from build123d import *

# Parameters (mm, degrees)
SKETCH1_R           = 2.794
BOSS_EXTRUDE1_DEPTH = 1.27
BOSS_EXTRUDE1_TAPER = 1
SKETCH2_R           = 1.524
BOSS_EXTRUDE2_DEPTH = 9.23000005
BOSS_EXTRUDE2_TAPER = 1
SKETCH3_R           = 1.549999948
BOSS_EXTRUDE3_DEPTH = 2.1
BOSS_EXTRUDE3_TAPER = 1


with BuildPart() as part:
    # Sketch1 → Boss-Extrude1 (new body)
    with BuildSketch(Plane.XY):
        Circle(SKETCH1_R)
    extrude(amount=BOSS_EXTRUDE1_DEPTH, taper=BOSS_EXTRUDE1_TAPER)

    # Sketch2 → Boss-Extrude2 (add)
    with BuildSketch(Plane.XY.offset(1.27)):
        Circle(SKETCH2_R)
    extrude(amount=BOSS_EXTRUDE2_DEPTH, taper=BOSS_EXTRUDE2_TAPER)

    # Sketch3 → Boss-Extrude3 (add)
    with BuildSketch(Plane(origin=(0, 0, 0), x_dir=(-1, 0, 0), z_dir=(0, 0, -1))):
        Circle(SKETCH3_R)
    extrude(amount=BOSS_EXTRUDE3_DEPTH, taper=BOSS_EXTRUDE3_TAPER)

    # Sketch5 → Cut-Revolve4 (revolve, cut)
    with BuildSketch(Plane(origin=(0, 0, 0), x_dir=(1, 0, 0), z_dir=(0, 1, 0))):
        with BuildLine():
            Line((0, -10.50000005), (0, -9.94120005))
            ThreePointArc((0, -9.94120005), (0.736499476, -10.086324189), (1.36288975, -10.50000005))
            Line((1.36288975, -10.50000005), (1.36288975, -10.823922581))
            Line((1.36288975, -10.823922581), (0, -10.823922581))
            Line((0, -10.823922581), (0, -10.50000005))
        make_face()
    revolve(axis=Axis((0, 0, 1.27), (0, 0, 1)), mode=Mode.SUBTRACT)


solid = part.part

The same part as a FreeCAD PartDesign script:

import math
import FreeCAD as App
import Part
import Sketcher
Q = App.Units.Quantity

doc = App.newDocument("Part")
body = doc.addObject("PartDesign::Body", "Body")

# Sketch on XY plane
sketch1 = body.newObject("Sketcher::SketchObject", "Sketch")
sketch1.AttachmentSupport = (doc.getObject("XY_Plane"), [""])
sketch1.MapMode = "FlatFace"
sketch1.addGeometry(Part.Circle(App.Vector(0, 0, 0), App.Vector(0, 0, 1), 2.794), False)
sketch1.addConstraint([
    Sketcher.Constraint("Coincident", 0, 3, -1, 1),
    Sketcher.Constraint("Diameter", 0, Q("0.22 in")),
])
pad1 = body.newObject("PartDesign::Pad", "Pad")
pad1.Profile = sketch1
pad1.Length = Q("0.05 in")
pad1.TaperAngle = -1

# Sketch on XY plane
sketch2 = body.newObject("Sketcher::SketchObject", "Sketch001")
sketch2.AttachmentSupport = (doc.getObject("XY_Plane"), [""])
sketch2.MapMode = "FlatFace"
sketch2.AttachmentOffset = App.Placement(App.Vector(0, 0, 0.05 * 25.4), App.Rotation())
sketch2.addGeometry(Part.Circle(App.Vector(0, 0, 0), App.Vector(0, 0, 1), 1.524), False)
sketch2.addConstraint([
    Sketcher.Constraint("Coincident", 0, 3, -1, 1),
    Sketcher.Constraint("Diameter", 0, Q("0.12 in")),
])
pad2 = body.newObject("PartDesign::Pad", "Pad001")
pad2.Profile = sketch2
pad2.Length = 9.23
pad2.TaperAngle = -1

# Sketch on XY plane
sketch3 = body.newObject("Sketcher::SketchObject", "Sketch002")
sketch3.AttachmentSupport = (doc.getObject("XY_Plane"), [""])
sketch3.MapMode = "FlatFace"
sketch3.addGeometry(Part.Circle(App.Vector(0, 0, 0), App.Vector(0, 0, 1), 1.55), False)
sketch3.addConstraint([
    Sketcher.Constraint("Coincident", 0, 3, -1, 1),
    Sketcher.Constraint("Diameter", 0, Q("3.1 mm")),
])
pad3 = body.newObject("PartDesign::Pad", "Pad002")
pad3.Profile = sketch3
pad3.Length = 2.1
pad3.Reversed = True
pad3.TaperAngle = -1

# Sketch on XZ plane
sketch4 = body.newObject("Sketcher::SketchObject", "Sketch003")
sketch4.AttachmentSupport = (doc.getObject("XZ_Plane"), [""])
sketch4.MapMode = "FlatFace"
sketch4.addGeometry([
    Part.ArcOfCircle(Part.Circle(App.Vector(0, 11.882615, 0), App.Vector(0, 0, 1), 1.941415), math.radians(-90), math.radians(-45.411647)),
    Part.LineSegment(App.Vector(0, 9.9412, 0), App.Vector(0, 10.823923, 0)),
    Part.LineSegment(App.Vector(0, 10.823923, 0), App.Vector(1.36289, 10.823923, 0)),
    Part.LineSegment(App.Vector(1.36289, 10.823923, 0), App.Vector(1.36289, 10.5, 0)),
], False)
sketch4.addConstraint([
    Sketcher.Constraint("Coincident", 0, 1, 1, 1),
    Sketcher.Constraint("Coincident", 1, 2, 2, 1),
    Sketcher.Constraint("Coincident", 2, 2, 3, 1),
    Sketcher.Constraint("Coincident", 3, 2, 0, 2),
    Sketcher.Constraint("Vertical", 1),
    Sketcher.Constraint("Horizontal", 2),
    Sketcher.Constraint("Vertical", 3),
    Sketcher.Constraint("PointOnObject", 0, 3, -2),
    Sketcher.Constraint("PointOnObject", 0, 1, -2),
    Sketcher.Constraint("DistanceY", 0, 1, 3, 2, Q("0.022 in")),
    Sketcher.Constraint("Radius", 0, Q("1.941415 mm")),
    Sketcher.Constraint("DistanceY", -1, 1, 0, 1, Q("9.9412 mm")),
    Sketcher.Constraint("DistanceY", 1, 1, 1, 2, Q("0.882723 mm")),
])
groove = body.newObject("PartDesign::Groove", "Groove")
groove.Profile = sketch4
groove.ReferenceAxis = (sketch4, ["V_Axis"])
groove.Angle = 360

doc.recompute()
